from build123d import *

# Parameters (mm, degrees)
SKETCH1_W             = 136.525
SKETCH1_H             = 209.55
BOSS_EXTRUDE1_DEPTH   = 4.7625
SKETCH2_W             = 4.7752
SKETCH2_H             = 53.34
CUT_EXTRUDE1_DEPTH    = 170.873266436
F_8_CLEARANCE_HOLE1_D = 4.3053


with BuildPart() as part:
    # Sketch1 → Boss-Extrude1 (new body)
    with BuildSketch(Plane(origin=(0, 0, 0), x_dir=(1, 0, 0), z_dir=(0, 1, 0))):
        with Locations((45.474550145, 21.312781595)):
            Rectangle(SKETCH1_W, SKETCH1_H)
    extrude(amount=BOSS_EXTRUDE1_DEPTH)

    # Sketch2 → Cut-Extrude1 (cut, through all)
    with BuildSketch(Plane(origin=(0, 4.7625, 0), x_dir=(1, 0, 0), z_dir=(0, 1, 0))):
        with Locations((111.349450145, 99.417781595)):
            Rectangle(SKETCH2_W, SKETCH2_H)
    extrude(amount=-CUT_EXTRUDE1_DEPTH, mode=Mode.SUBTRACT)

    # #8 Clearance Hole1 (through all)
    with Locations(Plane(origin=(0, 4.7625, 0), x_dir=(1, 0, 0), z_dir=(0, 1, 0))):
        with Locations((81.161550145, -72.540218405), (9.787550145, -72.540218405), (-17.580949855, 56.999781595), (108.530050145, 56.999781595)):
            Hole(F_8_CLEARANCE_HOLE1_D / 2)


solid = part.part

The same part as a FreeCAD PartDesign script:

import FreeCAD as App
import Part
import Sketcher
from FreeCAD import Vector
Q = App.Units.Quantity


def add_polygon(sketch, points):
    """Adds a closed chain of lines whose ends are joined by coincident constraints."""
    first, n = sketch.GeometryCount, len(points)
    for a, b in zip(points, points[1:] + points[:1]):
        sketch.addGeometry(Part.LineSegment(App.Vector(*a, 0), App.Vector(*b, 0)), False)
    for i in range(n):
        sketch.addConstraint(Sketcher.Constraint("Coincident", first + i, 2, first + (i + 1) % n, 1))

doc = App.newDocument("Part")
body = doc.addObject("PartDesign::Body", "Body")

# Sketch on XZ plane
sketch1 = body.newObject("Sketcher::SketchObject", "Sketch")
sketch1.AttachmentSupport = (doc.getObject("XZ_Plane"), [""])
sketch1.MapMode = "FlatFace"
add_polygon(sketch1, [(-23, -126), (-23, 83), (114, 83), (114, -126)])  # lines 0-3
sketch1.addConstraint(Sketcher.Constraint("Vertical", 0))
sketch1.addConstraint(Sketcher.Constraint("Horizontal", 1))
sketch1.addConstraint(Sketcher.Constraint("Vertical", 2))
sketch1.addConstraint(Sketcher.Constraint("Horizontal", 3))
sketch1.addConstraint(Sketcher.Constraint("DistanceY", 0, 1, 0, 2, Q("8.25 in")))
sketch1.addConstraint(Sketcher.Constraint("DistanceX", 1, 1, 1, 2, Q("5.375 in")))
sketch1.addConstraint(Sketcher.Constraint("DistanceX", 0, 2, -1, 1, Q("22.78795 mm")))
sketch1.addConstraint(Sketcher.Constraint("DistanceY", -1, 1, 0, 2, Q("83.462218 mm")))
pad1 = body.newObject("PartDesign::Pad", "Pad")
pad1.Profile = sketch1
pad1.Length = Q("0.1875 in")
pad1.Reversed = True

# Sketch on XZ plane
sketch2 = body.newObject("Sketcher::SketchObject", "Sketch001")
sketch2.AttachmentSupport = (doc.getObject("XZ_Plane"), [""])
sketch2.MapMode = "FlatFace"
sketch2.AttachmentOffset = App.Placement(Vector(0, 0, -0.1875 * 25.4), App.Rotation())
add_polygon(sketch2, [(109, -126.1), (109, -72.7), (113.7, -72.7), (113.7, -126.1)])  # lines 0-3
sketch2.addConstraint(Sketcher.Constraint("Vertical", 0))
sketch2.addConstraint(Sketcher.Constraint("Horizontal", 1))
sketch2.addConstraint(Sketcher.Constraint("Vertical", 2))
sketch2.addConstraint(Sketcher.Constraint("Horizontal", 3))
sketch2.addConstraint(Sketcher.Constraint("DistanceY", 0, 1, 0, 2, Q("2.1 in")))
sketch2.addConstraint(Sketcher.Constraint("DistanceX", 1, 1, 1, 2, Q("0.188 in")))
sketch2.addConstraint(Sketcher.Constraint("DistanceX", -1, 1, 0, 2, Q("108.96185 mm")))
sketch2.addConstraint(Sketcher.Constraint("DistanceY", 0, 2, -1, 1, Q("72.747782 mm")))
pocket1 = body.newObject("PartDesign::Pocket", "Pocket")
pocket1.Profile = sketch2
pocket1.Type = "ThroughAll"
pocket1.Reversed = True

# Sketch on XZ plane
sketch3 = body.newObject("Sketcher::SketchObject", "Sketch002")
sketch3.AttachmentSupport = (doc.getObject("XZ_Plane"), [""])
sketch3.MapMode = "FlatFace"
sketch3.AttachmentOffset = App.Placement(Vector(0, 0, -0.1875 * 25.4), App.Rotation())
sketch3.addGeometry(Part.Circle(Vector(81.2, 72.5, 0), Vector(0, 0, 1), 2.2), False)
sketch3.addGeometry(Part.Circle(Vector(9.8, 72.5, 0), Vector(0, 0, 1), 2.2), False)
sketch3.addGeometry(Part.Circle(Vector(-17.6, -57, 0), Vector(0, 0, 1), 2.2), False)
sketch3.addGeometry(Part.Circle(Vector(108.5, -57, 0), Vector(0, 0, 1), 2.2), False)
sketch3.addConstraint(Sketcher.Constraint("Equal", 0, 1))
sketch3.addConstraint(Sketcher.Constraint("Equal", 1, 2))
sketch3.addConstraint(Sketcher.Constraint("Equal", 2, 3))
sketch3.addConstraint(Sketcher.Constraint("Horizontal", 0, 3, 1, 3))
sketch3.addConstraint(Sketcher.Constraint("Horizontal", 2, 3, 3, 3))
sketch3.addConstraint(Sketcher.Constraint("Diameter", 0, Q("0.1695 in")))
sketch3.addConstraint(Sketcher.Constraint("DistanceY", 2, 3, 1, 3, Q("5.1 in")))
sketch3.addConstraint(Sketcher.Constraint("DistanceX", 1, 3, 0, 3, Q("2.81 in")))
sketch3.addConstraint(Sketcher.Constraint("DistanceX", 2, 3, 3, 3, Q("4.965 in")))
sketch3.addConstraint(Sketcher.Constraint("DistanceX", 2, 3, 1, 3, Q("1.0775 in")))
sketch3.addConstraint(Sketcher.Constraint("DistanceX", -1, 1, 0, 3, Q("81.16155 mm")))
sketch3.addConstraint(Sketcher.Constraint("DistanceY", -1, 1, 0, 3, Q("72.540218 mm")))
doc.recompute()
hole = body.newObject("PartDesign::Hole", "Hole")
hole.Profile = sketch3
hole.ThreadType = "None"
hole.Diameter = Q("0.1695 in")
hole.DepthType = "ThroughAll"
hole.Reversed = True

doc.recompute()
